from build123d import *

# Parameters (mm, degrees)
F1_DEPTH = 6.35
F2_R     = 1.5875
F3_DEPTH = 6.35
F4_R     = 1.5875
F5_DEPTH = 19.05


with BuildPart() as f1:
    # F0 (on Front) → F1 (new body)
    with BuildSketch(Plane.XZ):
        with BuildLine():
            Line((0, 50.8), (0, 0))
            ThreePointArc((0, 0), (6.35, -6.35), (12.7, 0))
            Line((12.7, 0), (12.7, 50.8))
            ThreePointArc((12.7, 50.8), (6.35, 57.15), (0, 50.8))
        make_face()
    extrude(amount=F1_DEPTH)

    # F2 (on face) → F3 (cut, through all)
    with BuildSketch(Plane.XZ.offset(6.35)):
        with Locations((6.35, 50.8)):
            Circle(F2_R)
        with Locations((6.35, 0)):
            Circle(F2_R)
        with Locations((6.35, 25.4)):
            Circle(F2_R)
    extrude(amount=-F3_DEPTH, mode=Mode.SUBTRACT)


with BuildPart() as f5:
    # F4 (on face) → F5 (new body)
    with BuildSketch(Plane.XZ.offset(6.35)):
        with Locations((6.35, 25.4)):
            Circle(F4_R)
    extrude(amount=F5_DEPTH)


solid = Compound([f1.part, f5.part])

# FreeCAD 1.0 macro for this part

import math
import FreeCAD as App
import Part
import Sketcher

V = App.Vector
Q = App.Units.Quantity

doc = App.newDocument("Part")
params = doc.addObject("Spreadsheet::Sheet", "Params")
for row, (alias, value) in enumerate([
    ("sketch1_height", "2 in"),
    ("sketch1_radius", "0.25 in"),
    ("pad1_length", "0.25 in"),
    ("sketch2_diameter", "0.125 in"),
    ("sketch3_diameter", "0.125 in"),
    ("pad2_length", "0.75 in"),
], start=1):
    params.set(f"A{row}", alias)
    params.set(f"B{row}", "=" + value)
    params.setAlias(f"B{row}", alias)

body = doc.addObject("PartDesign::Body", "Body")

sketch1 = doc.addObject("Sketcher::SketchObject", "Sketch")
body.addObject(sketch1)
sketch1.AttachmentSupport = (doc.XZ_Plane, [""])
sketch1.MapMode = "FlatFace"
sketch1.addGeometry([
    Part.LineSegment(V(0, 51, 0), V(0, 0, 0)),
    Part.ArcOfCircle(Part.Circle(V(6, 0, 0), V(0, 0, 1), 6), math.radians(180), math.radians(360)),
    Part.LineSegment(V(13, 0, 0), V(13, 51, 0)),
    Part.ArcOfCircle(Part.Circle(V(6, 51, 0), V(0, 0, 1), 6), math.radians(0), math.radians(180)),
], False)
sketch1.addConstraint([
    Sketcher.Constraint("Tangent", 0, 2, 1, 1),
    Sketcher.Constraint("Tangent", 1, 2, 2, 1),
    Sketcher.Constraint("Tangent", 2, 2, 3, 1),
    Sketcher.Constraint("Tangent", 3, 2, 0, 1),
    Sketcher.Constraint("Vertical", 0),
    Sketcher.Constraint("Vertical", 2),
    Sketcher.Constraint("Coincident", 0, 2, -1, 1),
    Sketcher.Constraint("DistanceY", 0, 2, 0, 1, Q("2 in")),
    Sketcher.Constraint("Radius", 1, Q("0.25 in")),
])
sketch1.setExpression("Constraints[7]", "Params.sketch1_height")
sketch1.setExpression("Constraints[8]", "Params.sketch1_radius")
pad1 = doc.addObject("PartDesign::Pad", "Pad")
body.addObject(pad1)
pad1.Profile = sketch1
pad1.setExpression("Length", "Params.pad1_length")

sketch2 = doc.addObject("Sketcher::SketchObject", "Sketch001")
body.addObject(sketch2)
sketch2.AttachmentSupport = (doc.XZ_Plane, [""])
sketch2.MapMode = "FlatFace"
sketch2.AttachmentOffset = App.Placement(V(0, 0, 0.25 * 25.4), App.Rotation())
sketch2.addGeometry([
    Part.Circle(V(6.3, 50.8, 0), V(0, 0, 1), 1.6),
    Part.Circle(V(6.3, 0, 0), V(0, 0, 1), 1.6),
    Part.Circle(V(6.3, 25.4, 0), V(0, 0, 1), 1.6),
], False)
sketch2.addConstraint([
    Sketcher.Constraint("Equal", 0, 1),
    Sketcher.Constraint("Equal", 1, 2),
    Sketcher.Constraint("PointOnObject", 1, 3, -1),
    Sketcher.Constraint("Vertical", 0, 3, 1, 3),
    Sketcher.Constraint("Vertical", 1, 3, 2, 3),
    Sketcher.Constraint("Diameter", 0, Q("0.125 in")),
    Sketcher.Constraint("DistanceY", -1, 1, 0, 3, Q("2 in")),
    Sketcher.Constraint("DistanceY", -1, 1, 2, 3, Q("1 in")),
    Sketcher.Constraint("DistanceX", -1, 1, 0, 3, Q("0.25 in")),
])
sketch2.setExpression("Constraints[5]", "Params.sketch2_diameter")
pocket1 = doc.addObject("PartDesign::Pocket", "Pocket")
body.addObject(pocket1)
pocket1.Profile = sketch2
pocket1.Type = "ThroughAll"
body2 = doc.addObject("PartDesign::Body", "Body001")

sketch3 = doc.addObject("Sketcher::SketchObject", "Sketch002")
body2.addObject(sketch3)
sketch3.AttachmentSupport = (doc.getObject("XZ_Plane001"), [""])
sketch3.MapMode = "FlatFace"
sketch3.AttachmentOffset = App.Placement(V(0, 0, 0.25 * 25.4), App.Rotation())
sketch3.addGeometry(Part.Circle(V(6.3, 25.4, 0), V(0, 0, 1), 1.6), False)
sketch3.addConstraint([
    Sketcher.Constraint("Diameter", 0, Q("0.125 in")),
    Sketcher.Constraint("DistanceY", -1, 1, 0, 3, Q("1 in")),
    Sketcher.Constraint("DistanceX", -1, 1, 0, 3, Q("0.25 in")),
])
sketch3.setExpression("Constraints[0]", "Params.sketch3_diameter")
pad2 = doc.addObject("PartDesign::Pad", "Pad001")
body2.addObject(pad2)
pad2.Profile = sketch3
pad2.setExpression("Length", "Params.pad2_length")

doc.recompute()
